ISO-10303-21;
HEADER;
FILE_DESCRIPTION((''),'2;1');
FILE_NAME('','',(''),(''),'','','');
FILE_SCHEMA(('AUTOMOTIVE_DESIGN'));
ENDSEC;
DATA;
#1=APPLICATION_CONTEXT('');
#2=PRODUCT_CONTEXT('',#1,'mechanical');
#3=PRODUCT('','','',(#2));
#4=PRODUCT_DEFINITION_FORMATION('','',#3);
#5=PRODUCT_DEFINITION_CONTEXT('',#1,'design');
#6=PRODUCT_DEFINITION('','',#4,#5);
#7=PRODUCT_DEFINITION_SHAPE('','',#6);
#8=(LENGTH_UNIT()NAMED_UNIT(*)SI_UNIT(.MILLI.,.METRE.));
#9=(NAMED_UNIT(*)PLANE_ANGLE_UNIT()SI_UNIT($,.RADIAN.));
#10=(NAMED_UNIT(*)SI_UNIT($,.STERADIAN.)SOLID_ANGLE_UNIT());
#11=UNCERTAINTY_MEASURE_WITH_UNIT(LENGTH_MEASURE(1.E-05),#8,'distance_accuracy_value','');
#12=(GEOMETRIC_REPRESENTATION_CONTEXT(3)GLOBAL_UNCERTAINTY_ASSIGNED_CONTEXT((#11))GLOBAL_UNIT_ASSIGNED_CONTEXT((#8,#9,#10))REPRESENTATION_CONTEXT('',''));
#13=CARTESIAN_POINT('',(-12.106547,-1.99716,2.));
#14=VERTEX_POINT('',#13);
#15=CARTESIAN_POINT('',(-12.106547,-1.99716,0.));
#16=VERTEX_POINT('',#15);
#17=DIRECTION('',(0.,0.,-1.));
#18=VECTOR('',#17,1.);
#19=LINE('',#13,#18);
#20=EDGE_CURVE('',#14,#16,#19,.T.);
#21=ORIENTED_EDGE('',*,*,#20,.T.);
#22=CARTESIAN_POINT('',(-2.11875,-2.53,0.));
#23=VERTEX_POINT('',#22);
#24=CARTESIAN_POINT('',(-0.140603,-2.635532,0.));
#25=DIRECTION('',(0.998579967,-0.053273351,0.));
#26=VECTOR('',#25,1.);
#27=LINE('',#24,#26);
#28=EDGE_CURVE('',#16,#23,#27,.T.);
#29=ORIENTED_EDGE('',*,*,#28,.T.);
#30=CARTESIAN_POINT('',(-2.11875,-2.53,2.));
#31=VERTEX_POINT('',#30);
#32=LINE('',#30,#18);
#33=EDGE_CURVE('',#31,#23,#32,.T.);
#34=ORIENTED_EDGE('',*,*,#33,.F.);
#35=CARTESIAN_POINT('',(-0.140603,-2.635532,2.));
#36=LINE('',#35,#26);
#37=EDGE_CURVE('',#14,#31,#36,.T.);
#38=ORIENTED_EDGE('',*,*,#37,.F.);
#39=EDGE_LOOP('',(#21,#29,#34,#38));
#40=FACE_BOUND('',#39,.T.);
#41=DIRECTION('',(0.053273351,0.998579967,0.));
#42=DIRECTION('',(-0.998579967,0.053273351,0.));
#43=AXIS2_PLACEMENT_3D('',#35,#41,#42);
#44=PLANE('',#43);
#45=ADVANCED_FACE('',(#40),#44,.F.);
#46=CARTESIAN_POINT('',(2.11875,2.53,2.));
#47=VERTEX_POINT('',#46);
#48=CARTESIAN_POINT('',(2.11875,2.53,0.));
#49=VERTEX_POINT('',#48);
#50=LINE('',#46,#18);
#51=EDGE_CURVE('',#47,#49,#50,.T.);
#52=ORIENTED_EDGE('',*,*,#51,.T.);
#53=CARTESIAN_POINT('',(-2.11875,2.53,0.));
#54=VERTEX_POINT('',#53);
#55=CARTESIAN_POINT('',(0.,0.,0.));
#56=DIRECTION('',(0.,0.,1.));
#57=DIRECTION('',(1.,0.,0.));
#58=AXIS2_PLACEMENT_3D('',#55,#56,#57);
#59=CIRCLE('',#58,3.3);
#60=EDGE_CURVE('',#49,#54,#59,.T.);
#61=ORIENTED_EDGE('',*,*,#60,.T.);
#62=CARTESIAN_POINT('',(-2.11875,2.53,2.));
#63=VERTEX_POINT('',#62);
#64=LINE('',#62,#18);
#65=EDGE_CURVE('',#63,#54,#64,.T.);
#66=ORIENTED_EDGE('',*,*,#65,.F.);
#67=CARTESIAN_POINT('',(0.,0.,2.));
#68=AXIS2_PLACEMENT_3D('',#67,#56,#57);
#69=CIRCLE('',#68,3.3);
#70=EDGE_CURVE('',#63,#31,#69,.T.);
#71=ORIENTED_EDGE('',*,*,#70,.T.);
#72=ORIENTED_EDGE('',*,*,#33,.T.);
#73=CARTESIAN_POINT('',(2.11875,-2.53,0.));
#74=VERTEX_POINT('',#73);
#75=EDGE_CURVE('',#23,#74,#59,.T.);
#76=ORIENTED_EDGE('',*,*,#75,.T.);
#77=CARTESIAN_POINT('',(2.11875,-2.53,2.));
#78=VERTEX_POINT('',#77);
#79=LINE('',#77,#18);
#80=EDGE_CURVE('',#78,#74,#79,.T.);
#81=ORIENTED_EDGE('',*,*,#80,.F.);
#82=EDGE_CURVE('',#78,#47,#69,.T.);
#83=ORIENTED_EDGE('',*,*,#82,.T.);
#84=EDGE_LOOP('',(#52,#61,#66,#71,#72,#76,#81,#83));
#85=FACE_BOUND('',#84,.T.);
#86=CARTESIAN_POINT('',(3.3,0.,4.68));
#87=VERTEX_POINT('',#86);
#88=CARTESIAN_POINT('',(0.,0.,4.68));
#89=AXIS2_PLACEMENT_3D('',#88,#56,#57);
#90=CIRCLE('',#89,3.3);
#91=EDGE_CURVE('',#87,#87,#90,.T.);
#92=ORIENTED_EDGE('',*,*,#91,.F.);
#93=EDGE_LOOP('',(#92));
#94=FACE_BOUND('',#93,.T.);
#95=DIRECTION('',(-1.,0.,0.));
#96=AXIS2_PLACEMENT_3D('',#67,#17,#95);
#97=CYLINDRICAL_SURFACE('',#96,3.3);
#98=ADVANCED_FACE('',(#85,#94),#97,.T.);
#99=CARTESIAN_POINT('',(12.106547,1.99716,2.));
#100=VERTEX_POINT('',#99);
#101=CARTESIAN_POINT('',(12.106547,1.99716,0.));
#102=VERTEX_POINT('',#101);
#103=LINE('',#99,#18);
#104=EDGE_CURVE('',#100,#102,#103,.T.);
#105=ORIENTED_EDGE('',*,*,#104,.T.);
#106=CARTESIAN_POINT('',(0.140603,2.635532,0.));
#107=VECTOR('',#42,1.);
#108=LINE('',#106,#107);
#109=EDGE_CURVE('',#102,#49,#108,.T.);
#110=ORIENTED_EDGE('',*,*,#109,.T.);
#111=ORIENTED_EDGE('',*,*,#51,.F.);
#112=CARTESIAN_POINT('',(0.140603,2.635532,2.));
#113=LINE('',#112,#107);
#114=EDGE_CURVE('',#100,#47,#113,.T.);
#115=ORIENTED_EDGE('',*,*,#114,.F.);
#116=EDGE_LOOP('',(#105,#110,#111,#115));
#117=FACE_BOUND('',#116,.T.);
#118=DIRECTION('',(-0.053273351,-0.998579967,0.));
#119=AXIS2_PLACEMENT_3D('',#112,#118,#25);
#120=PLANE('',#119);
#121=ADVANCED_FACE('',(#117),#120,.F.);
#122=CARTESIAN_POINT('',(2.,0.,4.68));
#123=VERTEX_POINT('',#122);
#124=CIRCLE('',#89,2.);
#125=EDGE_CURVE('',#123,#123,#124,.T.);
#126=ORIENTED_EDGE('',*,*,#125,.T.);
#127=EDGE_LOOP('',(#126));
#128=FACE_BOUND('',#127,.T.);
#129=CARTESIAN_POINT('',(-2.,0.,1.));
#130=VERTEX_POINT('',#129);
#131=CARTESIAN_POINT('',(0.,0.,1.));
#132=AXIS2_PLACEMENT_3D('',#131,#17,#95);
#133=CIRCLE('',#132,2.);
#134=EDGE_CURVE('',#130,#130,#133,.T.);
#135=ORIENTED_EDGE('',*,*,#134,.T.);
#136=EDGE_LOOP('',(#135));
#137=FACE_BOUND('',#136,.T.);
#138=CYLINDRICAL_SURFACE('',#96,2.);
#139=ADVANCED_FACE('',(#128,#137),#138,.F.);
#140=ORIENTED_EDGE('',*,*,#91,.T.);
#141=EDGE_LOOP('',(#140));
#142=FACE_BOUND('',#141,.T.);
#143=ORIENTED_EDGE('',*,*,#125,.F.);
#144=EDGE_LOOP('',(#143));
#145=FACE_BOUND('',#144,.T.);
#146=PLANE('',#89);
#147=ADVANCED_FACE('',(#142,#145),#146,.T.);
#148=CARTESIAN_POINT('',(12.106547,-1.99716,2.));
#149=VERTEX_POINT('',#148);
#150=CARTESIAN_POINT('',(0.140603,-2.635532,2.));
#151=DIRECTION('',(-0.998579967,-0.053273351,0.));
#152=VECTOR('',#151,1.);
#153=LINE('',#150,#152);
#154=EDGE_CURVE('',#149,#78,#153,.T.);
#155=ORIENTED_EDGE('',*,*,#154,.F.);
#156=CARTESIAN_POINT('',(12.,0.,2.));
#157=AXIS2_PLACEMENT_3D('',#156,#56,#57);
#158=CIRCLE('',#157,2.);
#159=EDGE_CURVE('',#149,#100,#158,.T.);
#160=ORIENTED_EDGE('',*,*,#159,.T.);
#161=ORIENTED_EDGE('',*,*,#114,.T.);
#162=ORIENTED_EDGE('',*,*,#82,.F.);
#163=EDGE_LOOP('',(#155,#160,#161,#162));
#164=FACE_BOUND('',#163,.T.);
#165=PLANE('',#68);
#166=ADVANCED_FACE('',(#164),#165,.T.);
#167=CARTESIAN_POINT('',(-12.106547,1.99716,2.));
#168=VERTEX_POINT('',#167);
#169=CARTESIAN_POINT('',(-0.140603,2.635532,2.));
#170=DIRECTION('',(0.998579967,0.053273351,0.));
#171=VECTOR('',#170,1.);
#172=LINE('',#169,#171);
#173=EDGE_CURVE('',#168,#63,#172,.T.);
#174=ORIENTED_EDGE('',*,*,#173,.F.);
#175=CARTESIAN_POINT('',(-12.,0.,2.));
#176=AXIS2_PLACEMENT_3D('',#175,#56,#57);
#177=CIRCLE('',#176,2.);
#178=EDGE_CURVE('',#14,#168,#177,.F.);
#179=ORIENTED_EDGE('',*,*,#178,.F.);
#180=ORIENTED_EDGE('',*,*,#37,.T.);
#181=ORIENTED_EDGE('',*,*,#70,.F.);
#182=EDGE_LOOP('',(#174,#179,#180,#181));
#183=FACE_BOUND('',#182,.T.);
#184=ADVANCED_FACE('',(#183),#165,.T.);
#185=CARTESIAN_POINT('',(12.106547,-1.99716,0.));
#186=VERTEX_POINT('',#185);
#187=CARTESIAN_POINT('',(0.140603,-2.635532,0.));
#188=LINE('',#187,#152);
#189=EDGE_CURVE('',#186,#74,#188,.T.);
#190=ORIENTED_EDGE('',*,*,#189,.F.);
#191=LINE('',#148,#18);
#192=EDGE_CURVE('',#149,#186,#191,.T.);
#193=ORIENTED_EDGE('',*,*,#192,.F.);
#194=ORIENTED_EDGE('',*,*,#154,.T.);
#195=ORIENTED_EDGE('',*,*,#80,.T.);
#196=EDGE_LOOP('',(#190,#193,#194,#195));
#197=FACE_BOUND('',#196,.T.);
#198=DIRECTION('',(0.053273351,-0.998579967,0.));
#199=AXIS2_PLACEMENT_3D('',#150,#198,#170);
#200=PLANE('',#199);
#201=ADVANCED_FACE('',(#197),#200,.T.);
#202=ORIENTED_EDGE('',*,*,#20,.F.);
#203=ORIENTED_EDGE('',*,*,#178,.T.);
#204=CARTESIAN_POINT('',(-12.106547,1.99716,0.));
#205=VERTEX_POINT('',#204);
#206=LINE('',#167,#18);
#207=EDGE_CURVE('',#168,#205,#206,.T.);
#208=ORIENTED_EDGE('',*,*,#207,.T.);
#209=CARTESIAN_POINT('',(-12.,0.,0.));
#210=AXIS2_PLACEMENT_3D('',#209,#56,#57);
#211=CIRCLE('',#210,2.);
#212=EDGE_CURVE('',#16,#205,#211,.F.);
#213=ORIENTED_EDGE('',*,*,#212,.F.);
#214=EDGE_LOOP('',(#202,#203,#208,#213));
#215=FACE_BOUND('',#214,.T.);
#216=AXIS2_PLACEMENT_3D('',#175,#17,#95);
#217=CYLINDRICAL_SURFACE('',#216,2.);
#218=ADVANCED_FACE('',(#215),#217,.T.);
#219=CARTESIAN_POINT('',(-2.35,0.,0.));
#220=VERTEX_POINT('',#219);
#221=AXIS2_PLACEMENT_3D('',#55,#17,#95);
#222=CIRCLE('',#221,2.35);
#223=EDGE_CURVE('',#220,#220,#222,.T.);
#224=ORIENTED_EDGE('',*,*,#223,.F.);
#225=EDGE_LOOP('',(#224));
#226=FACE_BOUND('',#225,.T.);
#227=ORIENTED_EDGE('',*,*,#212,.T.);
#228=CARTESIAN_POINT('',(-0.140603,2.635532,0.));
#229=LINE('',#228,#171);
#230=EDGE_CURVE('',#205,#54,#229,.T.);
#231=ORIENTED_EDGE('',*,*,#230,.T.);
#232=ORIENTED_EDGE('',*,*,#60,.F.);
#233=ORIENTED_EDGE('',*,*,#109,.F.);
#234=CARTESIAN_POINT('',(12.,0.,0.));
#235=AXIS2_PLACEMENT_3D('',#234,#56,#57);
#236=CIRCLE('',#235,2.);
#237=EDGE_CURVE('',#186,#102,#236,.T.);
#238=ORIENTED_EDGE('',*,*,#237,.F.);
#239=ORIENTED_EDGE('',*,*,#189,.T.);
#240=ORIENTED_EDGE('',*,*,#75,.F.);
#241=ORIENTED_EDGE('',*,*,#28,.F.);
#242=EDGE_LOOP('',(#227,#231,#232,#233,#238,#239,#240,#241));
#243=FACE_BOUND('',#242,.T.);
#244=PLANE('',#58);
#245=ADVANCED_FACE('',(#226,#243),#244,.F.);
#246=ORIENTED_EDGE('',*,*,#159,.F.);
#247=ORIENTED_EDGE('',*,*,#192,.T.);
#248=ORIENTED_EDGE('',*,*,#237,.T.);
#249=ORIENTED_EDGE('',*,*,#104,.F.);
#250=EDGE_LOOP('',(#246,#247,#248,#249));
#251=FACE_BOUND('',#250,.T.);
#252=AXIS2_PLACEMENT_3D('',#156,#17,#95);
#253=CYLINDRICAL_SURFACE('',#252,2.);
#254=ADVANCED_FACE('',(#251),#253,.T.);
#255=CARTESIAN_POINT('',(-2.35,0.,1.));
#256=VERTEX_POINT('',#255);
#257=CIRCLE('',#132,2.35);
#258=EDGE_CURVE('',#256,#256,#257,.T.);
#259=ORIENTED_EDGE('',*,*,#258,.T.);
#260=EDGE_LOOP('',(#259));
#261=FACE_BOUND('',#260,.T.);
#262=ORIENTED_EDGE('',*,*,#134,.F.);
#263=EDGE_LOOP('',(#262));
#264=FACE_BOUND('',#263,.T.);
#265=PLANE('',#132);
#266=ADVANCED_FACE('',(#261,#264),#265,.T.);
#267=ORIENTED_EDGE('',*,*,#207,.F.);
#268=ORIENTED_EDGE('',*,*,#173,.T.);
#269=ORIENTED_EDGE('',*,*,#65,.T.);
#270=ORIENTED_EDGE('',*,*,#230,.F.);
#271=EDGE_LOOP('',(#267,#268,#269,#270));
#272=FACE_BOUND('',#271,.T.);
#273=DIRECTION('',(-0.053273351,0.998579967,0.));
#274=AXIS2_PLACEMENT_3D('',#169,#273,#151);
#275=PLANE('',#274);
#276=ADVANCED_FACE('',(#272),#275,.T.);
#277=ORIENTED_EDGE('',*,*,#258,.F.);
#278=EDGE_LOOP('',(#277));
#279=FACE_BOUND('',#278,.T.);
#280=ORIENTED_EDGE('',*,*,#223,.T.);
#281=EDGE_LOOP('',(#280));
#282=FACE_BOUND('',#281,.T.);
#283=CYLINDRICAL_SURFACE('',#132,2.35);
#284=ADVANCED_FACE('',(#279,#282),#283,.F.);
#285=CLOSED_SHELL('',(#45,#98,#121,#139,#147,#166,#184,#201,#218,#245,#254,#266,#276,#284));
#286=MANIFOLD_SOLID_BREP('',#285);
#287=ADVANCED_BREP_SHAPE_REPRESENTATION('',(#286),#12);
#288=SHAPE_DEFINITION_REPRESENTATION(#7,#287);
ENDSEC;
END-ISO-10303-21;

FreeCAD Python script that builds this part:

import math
import FreeCAD as App
import Part
import Sketcher

V = App.Vector
Q = App.Units.Quantity

doc = App.newDocument("Part")
body = doc.addObject("PartDesign::Body", "Body")

# Sketch on XY plane
sketch1 = body.newObject("Sketcher::SketchObject", "Sketch")
sketch1.AttachmentSupport = (doc.getObject("XY_Plane"), [""])
sketch1.MapMode = "FlatFace"
sketch1.addGeometry([
    Part.LineSegment(V(-2.11875, 2.53, 0), V(-12.106547, 1.99716, 0)),  # 0
    Part.ArcOfCircle(Part.Circle(V(-12, 0, 0), V(0, 0, 1), 2), math.radians(93.053784), math.radians(266.946216)),  # 1
    Part.LineSegment(V(-12.106547, -1.99716, 0), V(-2.11875, -2.53, 0)),  # 2
    Part.ArcOfCircle(Part.Circle(V(0, 0, 0), V(0, 0, 1), 3.3), math.radians(-129.944505), math.radians(-50.055495)),  # 3
    Part.LineSegment(V(2.11875, -2.53, 0), V(12.106547, -1.99716, 0)),  # 4
    Part.ArcOfCircle(Part.Circle(V(12, 0, 0), V(0, 0, 1), 2), math.radians(-86.946216), math.radians(86.946216)),  # 5
    Part.LineSegment(V(12.106547, 1.99716, 0), V(2.11875, 2.53, 0)),  # 6
    Part.ArcOfCircle(Part.Circle(V(0, 0, 0), V(0, 0, 1), 3.3), math.radians(50.055495), math.radians(129.944505)),  # 7
    Part.Circle(V(0, 0, 0), V(0, 0, 1), 2),  # 8
], False)
sketch1.addConstraint([
    Sketcher.Constraint("Tangent", 0, 2, 1, 1),
    Sketcher.Constraint("Tangent", 1, 2, 2, 1),
    Sketcher.Constraint("Coincident", 2, 2, 3, 1),
    Sketcher.Constraint("Coincident", 3, 2, 4, 1),
    Sketcher.Constraint("Tangent", 4, 2, 5, 1),
    Sketcher.Constraint("Tangent", 5, 2, 6, 1),
    Sketcher.Constraint("Coincident", 6, 2, 7, 1),
    Sketcher.Constraint("Coincident", 7, 2, 0, 1),
    Sketcher.Constraint("Coincident", 3, 3, -1, 1),
    Sketcher.Constraint("Coincident", 7, 3, -1, 1),
    Sketcher.Constraint("Coincident", 8, 3, -1, 1),
    Sketcher.Constraint("Equal", 1, 5),
    Sketcher.Constraint("Equal", 3, 7),
    Sketcher.Constraint("Equal", 5, 8),
    Sketcher.Constraint("Symmetric", 1, 3, 5, 3, -1, 1),
    Sketcher.Constraint("Symmetric", 1, 2, 4, 2, -2),
    Sketcher.Constraint("Parallel", 0, 4),
    Sketcher.Constraint("Parallel", 2, 6),
    Sketcher.Constraint("Diameter", 8, Q("4 mm")),
    Sketcher.Constraint("Radius", 3, Q("3.3 mm")),
    Sketcher.Constraint("DistanceX", 1, 3, -1, 1, Q("12 mm")),
    Sketcher.Constraint("DistanceY", 2, 2, -1, 1, Q("2.53 mm")),
])
pad1 = body.newObject("PartDesign::Pad", "Pad")
pad1.Profile = sketch1
pad1.Length = 2

# Sketch on XY plane
sketch2 = body.newObject("Sketcher::SketchObject", "Sketch001")
sketch2.AttachmentSupport = (doc.getObject("XY_Plane"), [""])
sketch2.MapMode = "FlatFace"
sketch2.AttachmentOffset = App.Placement(V(0, 0, 2), App.Rotation())
sketch2.addGeometry([
    Part.Circle(V(0, 0, 0), V(0, 0, 1), 3.3),
    Part.Circle(V(0, 0, 0), V(0, 0, 1), 2),
], False)
sketch2.addConstraint([
    Sketcher.Constraint("Coincident", 0, 3, -1, 1),
    Sketcher.Constraint("Coincident", 1, 3, -1, 1),
    Sketcher.Constraint("Diameter", 1, Q("4 mm")),
    Sketcher.Constraint("Diameter", 0, Q("6.6 mm")),
])
pad2 = body.newObject("PartDesign::Pad", "Pad001")
pad2.Profile = sketch2
pad2.Length = 2.68

# Sketch on XY plane
sketch3 = body.newObject("Sketcher::SketchObject", "Sketch002")
sketch3.AttachmentSupport = (doc.getObject("XY_Plane"), [""])
sketch3.MapMode = "FlatFace"
sketch3.addGeometry(Part.Circle(V(0, 0, 0), V(0, 0, 1), 2.5), False)
sketch3.addConstraint([
    Sketcher.Constraint("Coincident", 0, 3, -1, 1),
    Sketcher.Constraint("Diameter", 0, Q("5 mm")),
])
pad3 = body.newObject("PartDesign::Pad", "Pad002")
pad3.Profile = sketch3
pad3.Length = 1

# Sketch on XY plane
sketch4 = body.newObject("Sketcher::SketchObject", "Sketch003")
sketch4.AttachmentSupport = (doc.getObject("XY_Plane"), [""])
sketch4.MapMode = "FlatFace"
sketch4.AttachmentOffset = App.Placement(V(0, 0, 1), App.Rotation())
sketch4.addGeometry(Part.Circle(V(0, 0, 0), V(0, 0, 1), 1.25), False)
sketch4.addConstraint([
    Sketcher.Constraint("Coincident", 0, 3, -1, 1),
    Sketcher.Constraint("Diameter", 0, Q("2.5 mm")),
])
pocket1 = body.newObject("PartDesign::Pocket", "Pocket")
pocket1.Profile = sketch4
pocket1.Type = "ThroughAll"
pocket1.Midplane = True

# Sketch on XY plane
sketch5 = body.newObject("Sketcher::SketchObject", "Sketch004")
sketch5.AttachmentSupport = (doc.getObject("XY_Plane"), [""])
sketch5.MapMode = "FlatFace"
sketch5.addGeometry(Part.Circle(V(0, 0, 0), V(0, 0, 1), 2.35), False)
sketch5.addConstraint([
    Sketcher.Constraint("Coincident", 0, 3, -1, 1),
    Sketcher.Constraint("Diameter", 0, Q("4.7 mm")),
])
pocket2 = body.newObject("PartDesign::Pocket", "Pocket001")
pocket2.Profile = sketch5
pocket2.Length = 1
pocket2.Reversed = True

doc.recompute()
